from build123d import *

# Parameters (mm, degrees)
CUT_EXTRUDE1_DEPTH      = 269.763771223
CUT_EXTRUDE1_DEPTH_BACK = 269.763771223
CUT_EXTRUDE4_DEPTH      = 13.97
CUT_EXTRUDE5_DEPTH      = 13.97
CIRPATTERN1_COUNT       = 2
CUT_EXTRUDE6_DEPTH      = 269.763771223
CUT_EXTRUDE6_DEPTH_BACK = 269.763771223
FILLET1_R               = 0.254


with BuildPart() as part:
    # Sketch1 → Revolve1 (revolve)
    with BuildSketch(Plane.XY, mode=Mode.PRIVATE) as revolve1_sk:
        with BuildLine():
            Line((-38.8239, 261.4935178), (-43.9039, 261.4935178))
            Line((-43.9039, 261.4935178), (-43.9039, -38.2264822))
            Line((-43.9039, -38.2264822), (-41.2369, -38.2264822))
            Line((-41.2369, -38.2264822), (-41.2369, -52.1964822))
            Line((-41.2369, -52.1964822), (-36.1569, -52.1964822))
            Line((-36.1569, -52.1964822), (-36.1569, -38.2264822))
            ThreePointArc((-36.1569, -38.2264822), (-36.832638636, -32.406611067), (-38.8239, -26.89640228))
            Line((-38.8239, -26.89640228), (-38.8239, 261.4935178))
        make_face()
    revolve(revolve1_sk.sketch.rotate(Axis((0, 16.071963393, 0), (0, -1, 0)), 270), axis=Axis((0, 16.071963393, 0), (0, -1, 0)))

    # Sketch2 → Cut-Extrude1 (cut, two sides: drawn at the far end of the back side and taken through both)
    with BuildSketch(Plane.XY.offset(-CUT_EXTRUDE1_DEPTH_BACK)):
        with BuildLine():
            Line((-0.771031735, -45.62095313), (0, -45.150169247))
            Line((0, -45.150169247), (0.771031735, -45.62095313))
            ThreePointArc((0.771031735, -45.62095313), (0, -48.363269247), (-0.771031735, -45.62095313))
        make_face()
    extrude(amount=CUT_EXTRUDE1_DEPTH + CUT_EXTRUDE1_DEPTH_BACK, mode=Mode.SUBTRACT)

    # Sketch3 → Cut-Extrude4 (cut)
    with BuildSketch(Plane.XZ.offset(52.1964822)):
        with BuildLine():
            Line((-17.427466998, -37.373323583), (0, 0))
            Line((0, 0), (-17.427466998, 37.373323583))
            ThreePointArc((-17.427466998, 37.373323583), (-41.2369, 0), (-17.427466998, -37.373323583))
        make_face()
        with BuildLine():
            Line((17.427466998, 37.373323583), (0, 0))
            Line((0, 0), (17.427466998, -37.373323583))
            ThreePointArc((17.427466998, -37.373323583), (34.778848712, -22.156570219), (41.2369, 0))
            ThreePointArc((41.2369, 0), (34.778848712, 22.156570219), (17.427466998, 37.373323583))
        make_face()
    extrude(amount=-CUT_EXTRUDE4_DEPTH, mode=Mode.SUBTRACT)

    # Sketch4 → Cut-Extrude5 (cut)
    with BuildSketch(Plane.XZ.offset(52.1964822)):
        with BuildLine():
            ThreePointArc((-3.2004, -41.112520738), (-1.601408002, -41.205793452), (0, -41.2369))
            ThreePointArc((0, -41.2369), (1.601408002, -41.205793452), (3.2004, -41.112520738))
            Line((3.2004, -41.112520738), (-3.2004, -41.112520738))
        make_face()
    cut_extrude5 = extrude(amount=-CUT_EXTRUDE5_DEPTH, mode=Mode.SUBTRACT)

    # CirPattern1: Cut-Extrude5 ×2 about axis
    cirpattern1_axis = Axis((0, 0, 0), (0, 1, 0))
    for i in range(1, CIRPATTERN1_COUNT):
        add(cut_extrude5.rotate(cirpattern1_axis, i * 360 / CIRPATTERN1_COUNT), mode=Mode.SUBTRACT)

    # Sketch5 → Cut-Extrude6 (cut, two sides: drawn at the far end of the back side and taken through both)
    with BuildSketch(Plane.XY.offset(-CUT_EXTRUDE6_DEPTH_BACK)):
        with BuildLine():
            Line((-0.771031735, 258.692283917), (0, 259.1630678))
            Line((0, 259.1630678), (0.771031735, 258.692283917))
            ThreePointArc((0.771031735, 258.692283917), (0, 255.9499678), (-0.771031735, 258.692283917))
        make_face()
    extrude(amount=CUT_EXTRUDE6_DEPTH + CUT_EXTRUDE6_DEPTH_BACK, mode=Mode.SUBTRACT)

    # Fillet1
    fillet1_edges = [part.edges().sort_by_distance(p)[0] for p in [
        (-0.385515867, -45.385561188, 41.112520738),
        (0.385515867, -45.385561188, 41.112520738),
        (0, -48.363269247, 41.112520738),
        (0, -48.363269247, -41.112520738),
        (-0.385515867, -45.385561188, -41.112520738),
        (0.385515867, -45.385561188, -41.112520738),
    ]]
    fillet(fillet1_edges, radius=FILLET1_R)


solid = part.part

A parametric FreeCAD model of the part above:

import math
import FreeCAD as App
import Part
import Sketcher
Q = App.Units.Quantity


def edges_at(feature, points):
    """Names of the edges that pass closest to the given points."""
    edges = feature.Shape.Edges
    near = lambda p: min(range(len(edges)), key=lambda i: edges[i].distToShape(Part.Vertex(*p))[0])
    return sorted({f"Edge{near(p) + 1}" for p in points})

doc = App.newDocument("Part")
body = doc.addObject("PartDesign::Body", "Body")

sketch1 = body.newObject("Sketcher::SketchObject", "Sketch")
sketch1.AttachmentSupport = (doc.getObject("XY_Plane"), [""])
sketch1.MapMode = "FlatFace"
sketch1.addGeometry([
    Part.LineSegment(App.Vector(-38.8, 261.5, 0), App.Vector(-43.9, 261.5, 0)),
    Part.LineSegment(App.Vector(-43.9, 261.5, 0), App.Vector(-43.9, -38.2, 0)),
    Part.LineSegment(App.Vector(-43.9, -38.2, 0), App.Vector(-41.2, -38.2, 0)),
    Part.LineSegment(App.Vector(-41.2, -38.2, 0), App.Vector(-41.2, -52.2, 0)),
    Part.LineSegment(App.Vector(-41.2, -52.2, 0), App.Vector(-36.2, -52.2, 0)),
    Part.LineSegment(App.Vector(-36.2, -52.2, 0), App.Vector(-36.2, -38.2, 0)),
    Part.ArcOfCircle(Part.Circle(App.Vector(-61.6, -38.2, 0), App.Vector(0, 0, 1), 25.4), math.radians(0), math.radians(26)),
    Part.LineSegment(App.Vector(-38.8, -26.9, 0), App.Vector(-38.8, 261.5, 0)),
], False)
sketch1.addConstraint([
    Sketcher.Constraint("Coincident", 0, 2, 1, 1),
    Sketcher.Constraint("Coincident", 1, 2, 2, 1),
    Sketcher.Constraint("Coincident", 2, 2, 3, 1),
    Sketcher.Constraint("Coincident", 3, 2, 4, 1),
    Sketcher.Constraint("Coincident", 4, 2, 5, 1),
    Sketcher.Constraint("Tangent", 5, 2, 6, 1),
    Sketcher.Constraint("Coincident", 6, 2, 7, 1),
    Sketcher.Constraint("Coincident", 7, 2, 0, 1),
    Sketcher.Constraint("Horizontal", 0),
    Sketcher.Constraint("Vertical", 1),
    Sketcher.Constraint("Horizontal", 2),
    Sketcher.Constraint("Vertical", 3),
    Sketcher.Constraint("Horizontal", 4),
    Sketcher.Constraint("Vertical", 5),
    Sketcher.Constraint("Vertical", 7),
    Sketcher.Constraint("Horizontal", 6, 3, 1, 2),
    Sketcher.Constraint("Equal", 0, 4),
    Sketcher.Constraint("Radius", 6, Q("1 in")),
    Sketcher.Constraint("DistanceX", 0, 2, 0, 1, Q("0.2 in")),
    Sketcher.Constraint("DistanceY", 1, 2, 1, 1, Q("11.8 in")),
    Sketcher.Constraint("DistanceY", 3, 2, 3, 1, Q("0.55 in")),
    Sketcher.Constraint("DistanceX", 2, 1, 2, 2, Q("0.105 in")),
    Sketcher.Constraint("DistanceX", 6, 3, -1, 1, Q("2.4235 in")),
    Sketcher.Constraint("DistanceY", 6, 3, -1, 1, Q("38.226482 mm")),
])
revolution = body.newObject("PartDesign::Revolution", "Revolution")
revolution.Profile = sketch1
revolution.ReferenceAxis = (sketch1, ["V_Axis"])
revolution.Angle = 360

sketch2 = body.newObject("Sketcher::SketchObject", "Sketch001")
sketch2.AttachmentSupport = (doc.getObject("XY_Plane"), [""])
sketch2.MapMode = "FlatFace"
sketch2.addGeometry([
    Part.LineSegment(App.Vector(0, -45.2, 0), App.Vector(-0.8, -45.6, 0)),
    Part.ArcOfCircle(Part.Circle(App.Vector(0, -46.9, 0), App.Vector(0, 0, 1), 1.5), math.radians(121), math.radians(419)),
    Part.LineSegment(App.Vector(0.8, -45.6, 0), App.Vector(0, -45.2, 0)),
], False)
sketch2.addConstraint([
    Sketcher.Constraint("Tangent", 0, 2, 1, 1),
    Sketcher.Constraint("Tangent", 1, 2, 2, 1),
    Sketcher.Constraint("Coincident", 2, 2, 0, 1),
    Sketcher.Constraint("Symmetric", 0, 2, 1, 2, -2),
    Sketcher.Constraint("Radius", 1, Q("1.47955 mm")),
    Sketcher.Constraint("DistanceY", 1, 3, -1, 1, Q("46.883719 mm")),
    Sketcher.Constraint("DistanceX", 0, 2, -1, 1, Q("0.771032 mm")),
])
pocket1 = body.newObject("PartDesign::Pocket", "Pocket")
pocket1.Profile = sketch2
pocket1.Type = "ThroughAll"
pocket1.Midplane = True

sketch3 = body.newObject("Sketcher::SketchObject", "Sketch002")
sketch3.AttachmentSupport = (doc.getObject("XZ_Plane"), [""])
sketch3.MapMode = "FlatFace"
sketch3.AttachmentOffset = App.Placement(App.Vector(0, 0, 52.196482), App.Rotation())
sketch3.addGeometry([
    Part.LineSegment(App.Vector(-17, -37, 0), App.Vector(0, 0, 0)),
    Part.LineSegment(App.Vector(0, 0, 0), App.Vector(-17, 37, 0)),
    Part.ArcOfCircle(Part.Circle(App.Vector(0, 0, 0), App.Vector(0, 0, 1), 41), math.radians(115), math.radians(245)),
    Part.LineSegment(App.Vector(17, 37, 0), App.Vector(0, 0, 0)),
    Part.LineSegment(App.Vector(0, 0, 0), App.Vector(17, -37, 0)),
    Part.ArcOfCircle(Part.Circle(App.Vector(0, 0, 0), App.Vector(0, 0, 1), 41), math.radians(-65), math.radians(0)),
    Part.ArcOfCircle(Part.Circle(App.Vector(0, 0, 0), App.Vector(0, 0, 1), 41), math.radians(0), math.radians(65)),
], False)
sketch3.addConstraint([
    Sketcher.Constraint("Coincident", 0, 2, 1, 1),
    Sketcher.Constraint("Coincident", 1, 2, 2, 1),
    Sketcher.Constraint("Coincident", 2, 2, 0, 1),
    Sketcher.Constraint("Coincident", 3, 2, 4, 1),
    Sketcher.Constraint("Coincident", 4, 2, 5, 1),
    Sketcher.Constraint("Tangent", 5, 2, 6, 1),
    Sketcher.Constraint("Coincident", 6, 2, 3, 1),
    Sketcher.Constraint("Coincident", 2, 3, -1, 1),
    Sketcher.Constraint("Coincident", 5, 3, -1, 1),
    Sketcher.Constraint("Coincident", 0, 2, -1, 1),
    Sketcher.Constraint("Coincident", 3, 2, -1, 1),
    Sketcher.Constraint("Equal", 2, 5),
    Sketcher.Constraint("Equal", 5, 6),
    Sketcher.Constraint("PointOnObject", 5, 2, -1),
    Sketcher.Constraint("Parallel", 0, 3),
    Sketcher.Constraint("Parallel", 1, 4),
    Sketcher.Constraint("Horizontal", 2, 2, 4, 2),
    Sketcher.Constraint("Angle", 0, Q("65 deg")),
    Sketcher.Constraint("Radius", 2, Q("1.6235 in")),
])
pocket2 = body.newObject("PartDesign::Pocket", "Pocket001")
pocket2.Profile = sketch3
pocket2.Length = Q("0.55 in")

sketch4 = body.newObject("Sketcher::SketchObject", "Sketch003")
sketch4.AttachmentSupport = (doc.getObject("XZ_Plane"), [""])
sketch4.MapMode = "FlatFace"
sketch4.AttachmentOffset = App.Placement(App.Vector(0, 0, 52.196482), App.Rotation())
sketch4.addGeometry([
    Part.ArcOfCircle(Part.Circle(App.Vector(0, 0, 0), App.Vector(0, 0, 1), 41.2), math.radians(-94.45), math.radians(-90)),
    Part.ArcOfCircle(Part.Circle(App.Vector(0, 0, 0), App.Vector(0, 0, 1), 41.2), math.radians(-90), math.radians(-85.55)),
    Part.LineSegment(App.Vector(3.2, -41.1, 0), App.Vector(-3.2, -41.1, 0)),
], False)
sketch4.addConstraint([
    Sketcher.Constraint("Tangent", 0, 2, 1, 1),
    Sketcher.Constraint("Coincident", 1, 2, 2, 1),
    Sketcher.Constraint("Coincident", 2, 2, 0, 1),
    Sketcher.Constraint("Horizontal", 2),
    Sketcher.Constraint("Coincident", 0, 3, -1, 1),
    Sketcher.Constraint("Equal", 0, 1),
    Sketcher.Constraint("PointOnObject", 0, 2, -2),
    Sketcher.Constraint("Radius", 0, Q("1.6235 in")),
    Sketcher.Constraint("DistanceX", 2, 2, 2, 1, Q("0.252 in")),
])
pocket3 = body.newObject("PartDesign::Pocket", "Pocket002")
pocket3.Profile = sketch4
pocket3.Length = Q("0.55 in")
doc.recompute()

polarpattern = body.newObject("PartDesign::PolarPattern", "PolarPattern")
polarpattern.Originals = [pocket3]
polarpattern.Axis = (doc.getObject("Y_Axis"), [""])
polarpattern.Angle = 360
polarpattern.Occurrences = 2
body.Tip = polarpattern

sketch5 = body.newObject("Sketcher::SketchObject", "Sketch004")
sketch5.AttachmentSupport = (doc.getObject("XY_Plane"), [""])
sketch5.MapMode = "FlatFace"
sketch5.addGeometry([
    Part.LineSegment(App.Vector(0, 259.2, 0), App.Vector(-0.8, 258.7, 0)),
    Part.ArcOfCircle(Part.Circle(App.Vector(0, 257.4, 0), App.Vector(0, 0, 1), 1.5), math.radians(121), math.radians(419)),
    Part.LineSegment(App.Vector(0.8, 258.7, 0), App.Vector(0, 259.2, 0)),
], False)
sketch5.addConstraint([
    Sketcher.Constraint("Tangent", 0, 2, 1, 1),
    Sketcher.Constraint("Tangent", 1, 2, 2, 1),
    Sketcher.Constraint("Coincident", 2, 2, 0, 1),
    Sketcher.Constraint("Symmetric", 0, 2, 1, 2, -2),
    Sketcher.Constraint("Radius", 1, Q("1.47955 mm")),
    Sketcher.Constraint("DistanceX", 0, 2, -1, 1, Q("0.771032 mm")),
    Sketcher.Constraint("DistanceY", -1, 1, 1, 3, Q("257.429518 mm")),
])
pocket4 = body.newObject("PartDesign::Pocket", "Pocket003")
pocket4.Profile = sketch5
pocket4.Type = "ThroughAll"
pocket4.Midplane = True
doc.recompute()

fillet = body.newObject("PartDesign::Fillet", "Fillet")
fillet.Base = (pocket4, edges_at(pocket4, [
    (-0.386, -45.386, 41.113),
    (0.386, -45.386, 41.113),
    (0, -48.363, 41.113),
    (0, -48.363, -41.113),
    (-0.386, -45.386, -41.113),
    (0.386, -45.386, -41.113),
]))
fillet.Radius = Q("0.01 in")

doc.recompute()
